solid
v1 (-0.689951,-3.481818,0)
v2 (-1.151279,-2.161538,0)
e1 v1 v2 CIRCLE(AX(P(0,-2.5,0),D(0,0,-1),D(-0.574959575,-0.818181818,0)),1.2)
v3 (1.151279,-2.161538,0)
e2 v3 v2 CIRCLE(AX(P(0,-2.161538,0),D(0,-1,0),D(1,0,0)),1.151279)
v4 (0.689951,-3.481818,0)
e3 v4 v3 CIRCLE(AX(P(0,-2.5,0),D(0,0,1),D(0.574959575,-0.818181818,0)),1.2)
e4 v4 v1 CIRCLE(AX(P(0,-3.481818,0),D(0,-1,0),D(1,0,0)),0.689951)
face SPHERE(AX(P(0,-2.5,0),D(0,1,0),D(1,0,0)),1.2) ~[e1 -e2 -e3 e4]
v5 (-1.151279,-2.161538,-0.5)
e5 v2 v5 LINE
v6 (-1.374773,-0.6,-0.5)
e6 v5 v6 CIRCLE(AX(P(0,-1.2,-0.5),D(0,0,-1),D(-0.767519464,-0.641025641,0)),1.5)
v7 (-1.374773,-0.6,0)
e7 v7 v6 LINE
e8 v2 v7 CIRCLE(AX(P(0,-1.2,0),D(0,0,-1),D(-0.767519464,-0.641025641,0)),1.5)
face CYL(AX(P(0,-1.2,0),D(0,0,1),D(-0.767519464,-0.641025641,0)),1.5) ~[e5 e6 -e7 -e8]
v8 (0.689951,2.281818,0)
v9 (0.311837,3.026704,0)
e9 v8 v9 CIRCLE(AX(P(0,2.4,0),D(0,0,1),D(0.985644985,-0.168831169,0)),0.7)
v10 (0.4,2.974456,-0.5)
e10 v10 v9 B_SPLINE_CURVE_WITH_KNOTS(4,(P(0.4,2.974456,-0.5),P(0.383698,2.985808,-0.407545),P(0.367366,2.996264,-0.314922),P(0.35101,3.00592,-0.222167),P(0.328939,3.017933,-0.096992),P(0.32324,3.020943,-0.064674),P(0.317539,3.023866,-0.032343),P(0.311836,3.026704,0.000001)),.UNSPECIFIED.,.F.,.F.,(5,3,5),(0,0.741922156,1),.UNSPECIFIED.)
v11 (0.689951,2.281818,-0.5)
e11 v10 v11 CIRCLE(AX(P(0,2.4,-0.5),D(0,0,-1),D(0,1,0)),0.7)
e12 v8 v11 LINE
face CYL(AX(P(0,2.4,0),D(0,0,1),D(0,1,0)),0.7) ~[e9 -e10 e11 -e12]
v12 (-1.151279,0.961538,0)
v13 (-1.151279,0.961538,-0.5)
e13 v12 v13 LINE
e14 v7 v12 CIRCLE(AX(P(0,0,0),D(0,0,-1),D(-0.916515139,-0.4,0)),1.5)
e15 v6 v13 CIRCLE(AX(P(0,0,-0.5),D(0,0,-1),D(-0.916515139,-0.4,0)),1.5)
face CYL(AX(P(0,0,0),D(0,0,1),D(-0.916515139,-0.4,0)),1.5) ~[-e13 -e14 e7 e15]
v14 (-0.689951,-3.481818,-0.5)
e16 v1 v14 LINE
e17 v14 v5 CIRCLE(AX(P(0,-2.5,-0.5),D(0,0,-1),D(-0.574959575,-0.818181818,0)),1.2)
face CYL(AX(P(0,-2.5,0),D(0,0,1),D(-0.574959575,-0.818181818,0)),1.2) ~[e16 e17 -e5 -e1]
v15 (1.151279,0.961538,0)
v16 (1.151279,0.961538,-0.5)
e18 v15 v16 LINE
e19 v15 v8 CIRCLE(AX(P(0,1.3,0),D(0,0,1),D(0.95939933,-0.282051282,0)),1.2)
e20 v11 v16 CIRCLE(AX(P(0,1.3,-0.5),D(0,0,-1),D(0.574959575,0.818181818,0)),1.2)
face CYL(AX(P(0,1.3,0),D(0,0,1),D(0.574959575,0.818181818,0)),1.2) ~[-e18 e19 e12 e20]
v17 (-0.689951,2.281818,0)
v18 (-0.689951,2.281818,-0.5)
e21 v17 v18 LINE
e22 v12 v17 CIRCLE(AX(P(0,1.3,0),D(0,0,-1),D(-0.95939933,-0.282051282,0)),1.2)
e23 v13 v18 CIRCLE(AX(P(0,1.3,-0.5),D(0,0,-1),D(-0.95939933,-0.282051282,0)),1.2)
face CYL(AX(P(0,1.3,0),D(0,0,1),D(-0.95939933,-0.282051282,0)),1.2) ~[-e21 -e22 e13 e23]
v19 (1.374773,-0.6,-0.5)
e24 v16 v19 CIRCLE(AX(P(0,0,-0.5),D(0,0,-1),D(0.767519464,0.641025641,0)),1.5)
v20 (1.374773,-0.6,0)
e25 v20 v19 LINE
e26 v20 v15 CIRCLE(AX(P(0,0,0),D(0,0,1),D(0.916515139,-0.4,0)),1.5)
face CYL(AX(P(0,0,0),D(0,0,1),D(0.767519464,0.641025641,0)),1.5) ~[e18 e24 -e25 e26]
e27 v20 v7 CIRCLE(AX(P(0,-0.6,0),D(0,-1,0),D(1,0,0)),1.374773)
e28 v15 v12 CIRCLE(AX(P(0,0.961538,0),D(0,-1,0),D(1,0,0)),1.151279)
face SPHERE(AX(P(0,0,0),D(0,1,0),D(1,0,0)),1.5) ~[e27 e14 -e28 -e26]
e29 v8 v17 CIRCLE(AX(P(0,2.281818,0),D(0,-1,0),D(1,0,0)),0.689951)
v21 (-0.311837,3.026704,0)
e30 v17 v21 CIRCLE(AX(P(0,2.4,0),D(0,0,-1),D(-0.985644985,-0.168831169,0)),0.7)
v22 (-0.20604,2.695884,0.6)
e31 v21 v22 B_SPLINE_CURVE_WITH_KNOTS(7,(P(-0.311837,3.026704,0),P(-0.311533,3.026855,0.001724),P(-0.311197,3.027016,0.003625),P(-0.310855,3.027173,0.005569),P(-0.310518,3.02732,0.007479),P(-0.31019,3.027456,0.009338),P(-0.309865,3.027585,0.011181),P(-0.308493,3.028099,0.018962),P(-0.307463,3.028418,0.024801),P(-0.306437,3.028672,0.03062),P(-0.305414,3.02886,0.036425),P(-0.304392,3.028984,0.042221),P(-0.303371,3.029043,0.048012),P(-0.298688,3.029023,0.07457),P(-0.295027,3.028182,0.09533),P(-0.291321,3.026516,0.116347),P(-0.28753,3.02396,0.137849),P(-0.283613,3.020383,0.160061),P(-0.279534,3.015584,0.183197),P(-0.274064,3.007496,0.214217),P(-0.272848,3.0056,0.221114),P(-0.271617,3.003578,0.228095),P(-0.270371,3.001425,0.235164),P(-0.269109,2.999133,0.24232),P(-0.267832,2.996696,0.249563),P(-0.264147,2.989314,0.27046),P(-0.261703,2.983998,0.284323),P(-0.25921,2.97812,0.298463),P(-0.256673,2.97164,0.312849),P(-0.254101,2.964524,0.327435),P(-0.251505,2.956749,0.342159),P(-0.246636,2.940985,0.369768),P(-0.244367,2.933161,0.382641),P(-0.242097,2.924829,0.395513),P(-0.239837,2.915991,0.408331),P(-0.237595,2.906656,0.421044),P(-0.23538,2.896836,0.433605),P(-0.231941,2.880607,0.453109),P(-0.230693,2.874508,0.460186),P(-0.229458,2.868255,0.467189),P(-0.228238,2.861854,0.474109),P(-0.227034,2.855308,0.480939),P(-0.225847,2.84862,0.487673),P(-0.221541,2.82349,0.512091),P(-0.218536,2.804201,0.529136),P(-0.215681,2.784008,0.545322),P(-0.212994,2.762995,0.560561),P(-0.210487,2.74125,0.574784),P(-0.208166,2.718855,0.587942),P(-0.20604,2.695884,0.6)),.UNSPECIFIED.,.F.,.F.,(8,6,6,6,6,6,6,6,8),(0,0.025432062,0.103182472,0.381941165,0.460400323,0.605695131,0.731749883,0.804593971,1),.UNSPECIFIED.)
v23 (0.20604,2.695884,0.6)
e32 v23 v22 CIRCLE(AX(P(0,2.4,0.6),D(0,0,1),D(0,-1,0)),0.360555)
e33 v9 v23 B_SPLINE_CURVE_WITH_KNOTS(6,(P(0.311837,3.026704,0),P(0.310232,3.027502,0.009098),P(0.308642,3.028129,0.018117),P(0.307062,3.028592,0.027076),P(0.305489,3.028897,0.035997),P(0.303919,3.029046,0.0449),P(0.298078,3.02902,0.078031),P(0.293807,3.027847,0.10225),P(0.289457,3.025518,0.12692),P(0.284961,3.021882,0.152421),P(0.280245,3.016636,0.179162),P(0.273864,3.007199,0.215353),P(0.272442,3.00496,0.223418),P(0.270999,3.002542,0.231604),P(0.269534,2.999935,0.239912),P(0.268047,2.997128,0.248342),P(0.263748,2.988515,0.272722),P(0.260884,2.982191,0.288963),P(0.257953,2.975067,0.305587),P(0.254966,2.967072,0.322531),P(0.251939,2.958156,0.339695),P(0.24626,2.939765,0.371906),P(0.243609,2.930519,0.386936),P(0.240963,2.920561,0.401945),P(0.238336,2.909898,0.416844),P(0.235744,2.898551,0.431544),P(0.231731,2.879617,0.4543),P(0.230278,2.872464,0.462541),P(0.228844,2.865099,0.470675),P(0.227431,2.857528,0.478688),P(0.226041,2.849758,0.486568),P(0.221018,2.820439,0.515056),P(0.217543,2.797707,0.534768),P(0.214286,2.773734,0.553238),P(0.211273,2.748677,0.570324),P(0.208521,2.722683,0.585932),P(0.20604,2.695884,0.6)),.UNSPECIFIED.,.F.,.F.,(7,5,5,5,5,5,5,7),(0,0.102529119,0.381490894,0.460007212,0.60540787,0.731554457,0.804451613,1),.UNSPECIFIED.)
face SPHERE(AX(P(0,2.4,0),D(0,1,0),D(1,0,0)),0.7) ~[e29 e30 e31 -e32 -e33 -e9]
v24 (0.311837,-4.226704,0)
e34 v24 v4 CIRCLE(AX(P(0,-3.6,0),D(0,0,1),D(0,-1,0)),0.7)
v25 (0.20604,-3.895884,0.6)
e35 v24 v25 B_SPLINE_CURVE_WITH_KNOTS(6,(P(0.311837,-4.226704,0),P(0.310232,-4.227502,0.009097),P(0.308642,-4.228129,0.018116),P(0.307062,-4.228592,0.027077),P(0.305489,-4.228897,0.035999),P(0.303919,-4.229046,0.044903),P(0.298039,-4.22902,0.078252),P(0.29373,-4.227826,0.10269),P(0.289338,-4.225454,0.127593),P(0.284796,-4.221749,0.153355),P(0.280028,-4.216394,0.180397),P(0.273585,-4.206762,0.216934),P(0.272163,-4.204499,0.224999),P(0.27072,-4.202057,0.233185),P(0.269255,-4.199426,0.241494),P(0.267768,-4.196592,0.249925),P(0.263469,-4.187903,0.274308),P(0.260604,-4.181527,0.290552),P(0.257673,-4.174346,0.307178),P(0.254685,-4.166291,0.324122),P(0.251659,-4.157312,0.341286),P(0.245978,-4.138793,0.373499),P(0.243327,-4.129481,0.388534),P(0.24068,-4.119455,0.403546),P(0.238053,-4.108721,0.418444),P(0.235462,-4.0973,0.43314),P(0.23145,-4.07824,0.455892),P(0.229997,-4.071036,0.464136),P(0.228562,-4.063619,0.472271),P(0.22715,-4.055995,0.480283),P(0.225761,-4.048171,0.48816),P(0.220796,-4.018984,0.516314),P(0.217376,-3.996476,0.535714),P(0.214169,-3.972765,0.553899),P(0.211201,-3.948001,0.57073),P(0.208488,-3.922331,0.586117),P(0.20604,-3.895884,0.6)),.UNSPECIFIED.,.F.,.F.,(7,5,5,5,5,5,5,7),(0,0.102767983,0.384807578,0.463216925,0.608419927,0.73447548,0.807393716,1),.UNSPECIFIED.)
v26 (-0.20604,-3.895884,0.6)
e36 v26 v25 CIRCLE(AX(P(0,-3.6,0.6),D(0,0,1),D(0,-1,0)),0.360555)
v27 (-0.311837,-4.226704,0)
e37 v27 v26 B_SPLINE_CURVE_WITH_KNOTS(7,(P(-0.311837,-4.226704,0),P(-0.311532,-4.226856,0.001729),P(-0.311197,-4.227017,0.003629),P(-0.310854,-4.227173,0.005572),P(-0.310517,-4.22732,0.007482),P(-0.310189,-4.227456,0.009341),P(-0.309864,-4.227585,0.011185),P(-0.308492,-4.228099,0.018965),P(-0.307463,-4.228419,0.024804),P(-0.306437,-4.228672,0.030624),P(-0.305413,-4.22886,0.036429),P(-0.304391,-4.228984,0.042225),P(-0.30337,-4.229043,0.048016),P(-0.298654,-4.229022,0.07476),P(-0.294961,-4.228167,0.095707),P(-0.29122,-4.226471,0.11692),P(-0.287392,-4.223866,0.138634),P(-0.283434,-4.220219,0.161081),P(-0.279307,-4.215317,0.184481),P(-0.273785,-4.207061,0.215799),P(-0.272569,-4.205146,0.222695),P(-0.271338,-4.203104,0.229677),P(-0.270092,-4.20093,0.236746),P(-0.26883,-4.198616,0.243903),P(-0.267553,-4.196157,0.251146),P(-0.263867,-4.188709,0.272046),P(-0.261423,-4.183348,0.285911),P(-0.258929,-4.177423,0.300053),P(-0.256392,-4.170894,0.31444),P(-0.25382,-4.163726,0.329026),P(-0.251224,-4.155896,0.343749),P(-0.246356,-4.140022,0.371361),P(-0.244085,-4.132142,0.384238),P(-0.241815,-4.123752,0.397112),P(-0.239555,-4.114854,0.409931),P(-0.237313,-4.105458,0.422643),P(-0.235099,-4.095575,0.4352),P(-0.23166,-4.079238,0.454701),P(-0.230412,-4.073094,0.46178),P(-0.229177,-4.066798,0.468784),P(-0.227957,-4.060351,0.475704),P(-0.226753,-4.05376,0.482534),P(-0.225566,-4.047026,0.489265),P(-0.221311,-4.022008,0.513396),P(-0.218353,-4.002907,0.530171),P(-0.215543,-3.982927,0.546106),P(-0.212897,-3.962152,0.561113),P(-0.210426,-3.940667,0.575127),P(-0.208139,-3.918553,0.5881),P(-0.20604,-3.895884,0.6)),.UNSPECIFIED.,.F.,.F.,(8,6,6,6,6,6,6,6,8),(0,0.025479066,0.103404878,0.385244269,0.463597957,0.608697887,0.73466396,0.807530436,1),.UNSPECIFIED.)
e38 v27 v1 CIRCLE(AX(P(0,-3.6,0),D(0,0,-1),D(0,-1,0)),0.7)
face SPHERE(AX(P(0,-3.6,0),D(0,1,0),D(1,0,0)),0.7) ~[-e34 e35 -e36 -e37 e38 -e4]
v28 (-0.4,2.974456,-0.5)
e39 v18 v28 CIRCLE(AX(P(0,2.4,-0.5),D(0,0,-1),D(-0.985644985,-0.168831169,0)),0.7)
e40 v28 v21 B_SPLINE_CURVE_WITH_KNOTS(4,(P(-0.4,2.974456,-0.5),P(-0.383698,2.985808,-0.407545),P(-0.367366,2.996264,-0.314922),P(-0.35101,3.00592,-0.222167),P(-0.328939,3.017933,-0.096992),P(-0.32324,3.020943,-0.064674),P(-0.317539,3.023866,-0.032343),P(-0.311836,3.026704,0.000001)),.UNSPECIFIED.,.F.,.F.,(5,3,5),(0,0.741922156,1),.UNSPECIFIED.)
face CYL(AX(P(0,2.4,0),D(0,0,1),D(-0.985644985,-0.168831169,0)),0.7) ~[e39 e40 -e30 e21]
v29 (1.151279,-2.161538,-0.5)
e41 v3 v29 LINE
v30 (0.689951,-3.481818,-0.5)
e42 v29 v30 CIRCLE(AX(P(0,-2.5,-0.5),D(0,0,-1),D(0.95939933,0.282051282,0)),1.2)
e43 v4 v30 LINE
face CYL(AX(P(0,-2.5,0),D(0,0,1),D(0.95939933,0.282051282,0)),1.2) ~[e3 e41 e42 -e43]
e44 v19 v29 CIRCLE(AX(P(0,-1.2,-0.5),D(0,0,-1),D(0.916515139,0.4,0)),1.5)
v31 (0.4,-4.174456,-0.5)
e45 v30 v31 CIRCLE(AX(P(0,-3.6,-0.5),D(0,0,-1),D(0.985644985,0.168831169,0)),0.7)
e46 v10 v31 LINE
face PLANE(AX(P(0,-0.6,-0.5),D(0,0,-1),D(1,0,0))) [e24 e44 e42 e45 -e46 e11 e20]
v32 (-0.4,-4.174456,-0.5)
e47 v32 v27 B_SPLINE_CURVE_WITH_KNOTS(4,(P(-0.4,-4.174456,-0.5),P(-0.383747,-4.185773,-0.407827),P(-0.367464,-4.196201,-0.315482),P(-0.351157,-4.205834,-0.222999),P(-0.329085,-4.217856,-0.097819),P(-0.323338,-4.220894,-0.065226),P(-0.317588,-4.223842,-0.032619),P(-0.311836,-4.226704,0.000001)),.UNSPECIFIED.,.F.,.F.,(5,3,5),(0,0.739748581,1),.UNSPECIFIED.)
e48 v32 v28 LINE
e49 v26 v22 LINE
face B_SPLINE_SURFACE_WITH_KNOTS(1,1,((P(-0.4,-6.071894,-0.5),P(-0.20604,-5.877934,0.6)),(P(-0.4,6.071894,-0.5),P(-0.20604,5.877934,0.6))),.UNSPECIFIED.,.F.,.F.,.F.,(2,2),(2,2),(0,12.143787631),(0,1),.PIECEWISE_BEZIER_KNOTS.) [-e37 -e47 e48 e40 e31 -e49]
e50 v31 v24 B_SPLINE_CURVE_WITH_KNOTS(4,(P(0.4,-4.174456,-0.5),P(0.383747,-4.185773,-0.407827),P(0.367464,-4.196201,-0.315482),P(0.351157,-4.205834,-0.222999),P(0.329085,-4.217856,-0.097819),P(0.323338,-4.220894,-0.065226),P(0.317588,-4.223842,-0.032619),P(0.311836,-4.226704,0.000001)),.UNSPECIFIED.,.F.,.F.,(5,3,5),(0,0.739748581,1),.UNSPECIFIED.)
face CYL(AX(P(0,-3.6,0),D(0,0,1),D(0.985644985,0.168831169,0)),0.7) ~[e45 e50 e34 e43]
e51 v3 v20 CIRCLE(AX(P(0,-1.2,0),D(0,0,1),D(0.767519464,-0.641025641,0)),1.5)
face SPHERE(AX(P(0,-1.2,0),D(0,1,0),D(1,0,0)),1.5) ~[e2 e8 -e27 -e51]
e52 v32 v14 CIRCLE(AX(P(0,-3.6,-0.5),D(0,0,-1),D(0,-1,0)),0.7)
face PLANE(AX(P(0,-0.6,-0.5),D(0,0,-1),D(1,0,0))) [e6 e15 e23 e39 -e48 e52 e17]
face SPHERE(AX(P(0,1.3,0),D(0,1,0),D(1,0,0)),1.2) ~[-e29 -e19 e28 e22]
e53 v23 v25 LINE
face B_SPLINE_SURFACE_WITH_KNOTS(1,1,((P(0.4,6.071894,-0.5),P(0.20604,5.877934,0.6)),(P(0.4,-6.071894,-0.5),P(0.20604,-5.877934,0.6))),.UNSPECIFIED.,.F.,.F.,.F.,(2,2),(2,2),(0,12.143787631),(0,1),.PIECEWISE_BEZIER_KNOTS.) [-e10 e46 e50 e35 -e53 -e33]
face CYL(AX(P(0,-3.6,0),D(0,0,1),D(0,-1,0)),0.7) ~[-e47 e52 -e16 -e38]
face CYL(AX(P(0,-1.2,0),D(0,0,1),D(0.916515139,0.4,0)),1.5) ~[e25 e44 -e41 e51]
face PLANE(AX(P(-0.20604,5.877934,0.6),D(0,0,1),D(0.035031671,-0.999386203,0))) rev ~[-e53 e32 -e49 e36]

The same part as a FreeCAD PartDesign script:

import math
import FreeCAD as App
import Part
import Sketcher

V = App.Vector
Q = App.Units.Quantity


def add_polygon(sketch, points):
    """Adds a closed chain of lines whose ends are joined by coincident constraints."""
    first, n = sketch.GeometryCount, len(points)
    for a, b in zip(points, points[1:] + points[:1]):
        sketch.addGeometry(Part.LineSegment(App.Vector(*a, 0), App.Vector(*b, 0)), False)
    for i in range(n):
        sketch.addConstraint(Sketcher.Constraint("Coincident", first + i, 2, first + (i + 1) % n, 1))

doc = App.newDocument("Part")
body = doc.addObject("PartDesign::Body", "Body")

# Sketch on XY plane
sketch1 = body.newObject("Sketcher::SketchObject", "Sketch")
sketch1.AttachmentSupport = (doc.getObject("XY_Plane"), [""])
sketch1.MapMode = "FlatFace"
sketch1.addGeometry(Part.ArcOfCircle(Part.Circle(V(0, 1.3, 0), V(0, 0, 1), 1.2), math.radians(-16), math.radians(55)), False)
sketch1.addGeometry(Part.ArcOfCircle(Part.Circle(V(0, 2.4, 0), V(0, 0, 1), 0.7), math.radians(-10), math.radians(90)), False)
sketch1.addGeometry(Part.LineSegment(V(0, 3.1, 0), V(0, -4.3, 0)), False)
sketch1.addGeometry(Part.ArcOfCircle(Part.Circle(V(0, -3.6, 0), V(0, 0, 1), 0.7), math.radians(-90), math.radians(10)), False)
sketch1.addGeometry(Part.ArcOfCircle(Part.Circle(V(0, -2.5, 0), V(0, 0, 1), 1.2), math.radians(-55), math.radians(16)), False)
sketch1.addGeometry(Part.ArcOfCircle(Part.Circle(V(0, -1.2, 0), V(0, 0, 1), 1.5), math.radians(-40), math.radians(24)), False)
sketch1.addGeometry(Part.ArcOfCircle(Part.Circle(V(0, 0, 0), V(0, 0, 1), 1.5), math.radians(-24), math.radians(40)), False)
sketch1.addConstraint(Sketcher.Constraint("Coincident", 0, 2, 1, 1))
sketch1.addConstraint(Sketcher.Constraint("Coincident", 1, 2, 2, 1))
sketch1.addConstraint(Sketcher.Constraint("Coincident", 2, 2, 3, 1))
sketch1.addConstraint(Sketcher.Constraint("Coincident", 3, 2, 4, 1))
sketch1.addConstraint(Sketcher.Constraint("Coincident", 4, 2, 5, 1))
sketch1.addConstraint(Sketcher.Constraint("Coincident", 5, 2, 6, 1))
sketch1.addConstraint(Sketcher.Constraint("Coincident", 6, 2, 0, 1))
sketch1.addConstraint(Sketcher.Constraint("Vertical", 2))
sketch1.addConstraint(Sketcher.Constraint("Coincident", 6, 3, -1, 1))
sketch1.addConstraint(Sketcher.Constraint("Equal", 1, 3))
sketch1.addConstraint(Sketcher.Constraint("Equal", 0, 4))
sketch1.addConstraint(Sketcher.Constraint("Equal", 5, 6))
sketch1.addConstraint(Sketcher.Constraint("PointOnObject", 0, 3, -2))
sketch1.addConstraint(Sketcher.Constraint("PointOnObject", 1, 3, -2))
sketch1.addConstraint(Sketcher.Constraint("PointOnObject", 3, 3, -2))
sketch1.addConstraint(Sketcher.Constraint("PointOnObject", 4, 3, -2))
sketch1.addConstraint(Sketcher.Constraint("PointOnObject", 5, 3, -2))
sketch1.addConstraint(Sketcher.Constraint("PointOnObject", 1, 2, -2))
sketch1.addConstraint(Sketcher.Constraint("Vertical", 0, 2, 3, 2))
sketch1.addConstraint(Sketcher.Constraint("Vertical", 4, 2, 6, 2))
sketch1.addConstraint(Sketcher.Constraint("Radius", 0, Q("1.2 mm")))
sketch1.addConstraint(Sketcher.Constraint("Radius", 1, Q("0.7 mm")))
sketch1.addConstraint(Sketcher.Constraint("Radius", 5, Q("1.5 mm")))
sketch1.addConstraint(Sketcher.Constraint("DistanceY", 2, 2, 2, 1, Q("7.4 mm")))
sketch1.addConstraint(Sketcher.Constraint("DistanceY", -1, 1, 0, 3, Q("1.3 mm")))
sketch1.addConstraint(Sketcher.Constraint("DistanceY", -1, 1, 1, 3, Q("2.4 mm")))
revolution = body.newObject("PartDesign::Revolution", "Revolution")
revolution.Profile = sketch1
revolution.ReferenceAxis = (sketch1, ["V_Axis"])
revolution.Angle = 180
revolution.Reversed = True

# Sketch on XY plane
sketch2 = body.newObject("Sketcher::SketchObject", "Sketch001")
sketch2.AttachmentSupport = (doc.getObject("XY_Plane"), [""])
sketch2.MapMode = "FlatFace"
sketch2.addGeometry(Part.ArcOfCircle(Part.Circle(V(0, 0, 0), V(0, 0, 1), 1.5), math.radians(140), math.radians(204)), False)
sketch2.addGeometry(Part.ArcOfCircle(Part.Circle(V(0, 1.3, 0), V(0, 0, 1), 1.2), math.radians(125), math.radians(196)), False)
sketch2.addGeometry(Part.ArcOfCircle(Part.Circle(V(0, 2.4, 0), V(0, 0, 1), 0.7), math.radians(90), math.radians(190)), False)
sketch2.addGeometry(Part.ArcOfCircle(Part.Circle(V(0, 2.4, 0), V(0, 0, 1), 0.7), math.radians(-10), math.radians(90)), False)
sketch2.addGeometry(Part.ArcOfCircle(Part.Circle(V(0, 1.3, 0), V(0, 0, 1), 1.2), math.radians(-16), math.radians(55)), False)
sketch2.addGeometry(Part.ArcOfCircle(Part.Circle(V(0, 0, 0), V(0, 0, 1), 1.5), math.radians(-24), math.radians(40)), False)
sketch2.addGeometry(Part.ArcOfCircle(Part.Circle(V(0, -1.2, 0), V(0, 0, 1), 1.5), math.radians(-40), math.radians(24)), False)
sketch2.addGeometry(Part.ArcOfCircle(Part.Circle(V(0, -2.5, 0), V(0, 0, 1), 1.2), math.radians(-55), math.radians(16)), False)
sketch2.addGeometry(Part.ArcOfCircle(Part.Circle(V(0, -3.6, 0), V(0, 0, 1), 0.7), math.radians(-90), math.radians(10)), False)
sketch2.addGeometry(Part.ArcOfCircle(Part.Circle(V(0, -3.6, 0), V(0, 0, 1), 0.7), math.radians(170), math.radians(270)), False)
sketch2.addGeometry(Part.ArcOfCircle(Part.Circle(V(0, -2.5, 0), V(0, 0, 1), 1.2), math.radians(164), math.radians(235)), False)
sketch2.addGeometry(Part.ArcOfCircle(Part.Circle(V(0, -1.2, 0), V(0, 0, 1), 1.5), math.radians(156), math.radians(220)), False)
sketch2.addConstraint(Sketcher.Constraint("Coincident", 0, 1, 1, 2))
sketch2.addConstraint(Sketcher.Constraint("Coincident", 1, 1, 2, 2))
sketch2.addConstraint(Sketcher.Constraint("Tangent", 2, 1, 3, 2))
sketch2.addConstraint(Sketcher.Constraint("Coincident", 3, 1, 4, 2))
sketch2.addConstraint(Sketcher.Constraint("Coincident", 4, 1, 5, 2))
sketch2.addConstraint(Sketcher.Constraint("Coincident", 5, 1, 6, 2))
sketch2.addConstraint(Sketcher.Constraint("Coincident", 6, 1, 7, 2))
sketch2.addConstraint(Sketcher.Constraint("Coincident", 7, 1, 8, 2))
sketch2.addConstraint(Sketcher.Constraint("Tangent", 8, 1, 9, 2))
sketch2.addConstraint(Sketcher.Constraint("Coincident", 9, 1, 10, 2))
sketch2.addConstraint(Sketcher.Constraint("Coincident", 10, 1, 11, 2))
sketch2.addConstraint(Sketcher.Constraint("Coincident", 11, 1, 0, 2))
sketch2.addConstraint(Sketcher.Constraint("Coincident", 0, 3, -1, 1))
sketch2.addConstraint(Sketcher.Constraint("Coincident", 5, 3, -1, 1))
sketch2.addConstraint(Sketcher.Constraint("Coincident", 4, 3, 1, 3))
sketch2.addConstraint(Sketcher.Constraint("Coincident", 10, 3, 7, 3))
sketch2.addConstraint(Sketcher.Constraint("Coincident", 11, 3, 6, 3))
sketch2.addConstraint(Sketcher.Constraint("Equal", 2, 3))
sketch2.addConstraint(Sketcher.Constraint("Equal", 1, 4))
sketch2.addConstraint(Sketcher.Constraint("Equal", 0, 5))
sketch2.addConstraint(Sketcher.Constraint("Equal", 5, 6))
sketch2.addConstraint(Sketcher.Constraint("Equal", 4, 7))
sketch2.addConstraint(Sketcher.Constraint("Equal", 3, 8))
sketch2.addConstraint(Sketcher.Constraint("Equal", 8, 9))
sketch2.addConstraint(Sketcher.Constraint("Equal", 7, 10))
sketch2.addConstraint(Sketcher.Constraint("Equal", 6, 11))
sketch2.addConstraint(Sketcher.Constraint("Symmetric", 1, 1, 3, 1, -2))
sketch2.addConstraint(Sketcher.Constraint("Symmetric", 7, 1, 9, 1, -2))
sketch2.addConstraint(Sketcher.Constraint("PointOnObject", 6, 3, -2))
sketch2.addConstraint(Sketcher.Constraint("PointOnObject", 2, 1, -2))
sketch2.addConstraint(Sketcher.Constraint("PointOnObject", 8, 1, -2))
sketch2.addConstraint(Sketcher.Constraint("Vertical", 4, 1, 6, 1))
sketch2.addConstraint(Sketcher.Constraint("Vertical", 3, 1, 7, 1))
sketch2.addConstraint(Sketcher.Constraint("Radius", 0, Q("1.5 mm")))
sketch2.addConstraint(Sketcher.Constraint("Radius", 1, Q("1.2 mm")))
sketch2.addConstraint(Sketcher.Constraint("Radius", 2, Q("0.7 mm")))
sketch2.addConstraint(Sketcher.Constraint("DistanceY", -1, 1, 1, 3, Q("1.3 mm")))
sketch2.addConstraint(Sketcher.Constraint("DistanceY", -1, 1, 2, 3, Q("2.4 mm")))
sketch2.addConstraint(Sketcher.Constraint("DistanceY", 6, 3, -1, 1, Q("1.2 mm")))
pad1 = body.newObject("PartDesign::Pad", "Pad")
pad1.Profile = sketch2
pad1.Length = 0.5
pad1.Reversed = True

# Sketch on XY plane
sketch3 = body.newObject("Sketcher::SketchObject", "Sketch002")
sketch3.AttachmentSupport = (doc.getObject("XY_Plane"), [""])
sketch3.MapMode = "FlatFace"
sketch3.AttachmentOffset = App.Placement(V(0, 0, -0.5), App.Rotation())
add_polygon(sketch3, [(-0.4, 6.1), (0.4, 6.1), (0.4, -6.1), (-0.4, -6.1)])  # lines 0-3
sketch3.addConstraint(Sketcher.Constraint("Horizontal", 0))
sketch3.addConstraint(Sketcher.Constraint("Vertical", 1))
sketch3.addConstraint(Sketcher.Constraint("Horizontal", 2))
sketch3.addConstraint(Sketcher.Constraint("Vertical", 3))
sketch3.addConstraint(Sketcher.Constraint("Symmetric", 0, 2, 2, 2, -1, 1))
sketch3.addConstraint(Sketcher.Constraint("DistanceX", 0, 1, 0, 2, Q("0.8 mm")))
sketch3.addConstraint(Sketcher.Constraint("DistanceY", 1, 2, 1, 1, Q("12.143788 mm")))
pocket1 = body.newObject("PartDesign::Pocket", "Pocket")
pocket1.Profile = sketch3
pocket1.Length = 1.1
pocket1.Reversed = True
pocket1.TaperAngle = -10

doc.recompute()
